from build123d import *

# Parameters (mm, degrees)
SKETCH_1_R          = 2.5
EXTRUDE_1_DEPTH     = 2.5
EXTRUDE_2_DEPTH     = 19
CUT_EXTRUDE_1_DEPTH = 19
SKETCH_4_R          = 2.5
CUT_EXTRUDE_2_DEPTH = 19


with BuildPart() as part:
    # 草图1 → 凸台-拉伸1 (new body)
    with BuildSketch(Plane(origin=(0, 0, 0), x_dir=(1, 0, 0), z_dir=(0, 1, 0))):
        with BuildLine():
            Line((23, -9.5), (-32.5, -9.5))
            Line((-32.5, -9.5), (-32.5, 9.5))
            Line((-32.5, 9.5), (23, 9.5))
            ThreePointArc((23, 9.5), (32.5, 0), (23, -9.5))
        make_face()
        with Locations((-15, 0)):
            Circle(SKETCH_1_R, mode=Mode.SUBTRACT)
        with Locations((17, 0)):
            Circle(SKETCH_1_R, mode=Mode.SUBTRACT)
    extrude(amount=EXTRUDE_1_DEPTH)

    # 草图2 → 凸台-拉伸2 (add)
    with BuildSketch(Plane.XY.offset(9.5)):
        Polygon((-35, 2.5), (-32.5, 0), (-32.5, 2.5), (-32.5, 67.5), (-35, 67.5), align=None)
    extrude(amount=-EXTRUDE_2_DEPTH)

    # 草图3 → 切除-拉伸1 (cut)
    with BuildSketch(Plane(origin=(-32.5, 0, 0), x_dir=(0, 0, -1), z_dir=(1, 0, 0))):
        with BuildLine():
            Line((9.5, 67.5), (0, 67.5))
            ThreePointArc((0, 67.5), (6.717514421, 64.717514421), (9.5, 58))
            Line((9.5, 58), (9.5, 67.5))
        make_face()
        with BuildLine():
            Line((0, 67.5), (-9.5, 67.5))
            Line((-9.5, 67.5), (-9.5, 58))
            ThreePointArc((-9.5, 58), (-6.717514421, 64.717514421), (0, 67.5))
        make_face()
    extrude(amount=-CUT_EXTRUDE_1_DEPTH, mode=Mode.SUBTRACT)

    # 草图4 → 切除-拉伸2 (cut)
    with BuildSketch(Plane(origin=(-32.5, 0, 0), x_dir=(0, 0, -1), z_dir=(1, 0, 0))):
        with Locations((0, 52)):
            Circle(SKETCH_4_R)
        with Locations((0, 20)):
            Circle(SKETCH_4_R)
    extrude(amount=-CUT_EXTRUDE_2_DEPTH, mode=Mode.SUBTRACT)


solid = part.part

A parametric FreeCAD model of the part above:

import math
import FreeCAD as App
import Part
import Sketcher

V = App.Vector
Q = App.Units.Quantity


def add_polygon(sketch, points):
    """Adds a closed chain of lines whose ends are joined by coincident constraints."""
    first, n = sketch.GeometryCount, len(points)
    for a, b in zip(points, points[1:] + points[:1]):
        sketch.addGeometry(Part.LineSegment(App.Vector(*a, 0), App.Vector(*b, 0)), False)
    for i in range(n):
        sketch.addConstraint(Sketcher.Constraint("Coincident", first + i, 2, first + (i + 1) % n, 1))

doc = App.newDocument("Part")
body = doc.addObject("PartDesign::Body", "Body")

sketch1 = doc.addObject("Sketcher::SketchObject", "Sketch")
body.addObject(sketch1)
sketch1.AttachmentSupport = (doc.XZ_Plane, [""])
sketch1.MapMode = "FlatFace"
sketch1.addGeometry([
    Part.LineSegment(V(-32.5, 9.5, 0), V(23, 9.5, 0)),
    Part.ArcOfCircle(Part.Circle(V(23, 0, 0), V(0, 0, 1), 9.5), math.radians(-90), math.radians(90)),
    Part.LineSegment(V(23, -9.5, 0), V(-32.5, -9.5, 0)),
    Part.LineSegment(V(-32.5, -9.5, 0), V(-32.5, 9.5, 0)),
    Part.Circle(V(17, 0, 0), V(0, 0, 1), 2.5),
    Part.Circle(V(-15, 0, 0), V(0, 0, 1), 2.5),
], False)
sketch1.addConstraint([
    Sketcher.Constraint("Tangent", 0, 2, 1, 2),
    Sketcher.Constraint("Tangent", 1, 1, 2, 1),
    Sketcher.Constraint("Coincident", 2, 2, 3, 1),
    Sketcher.Constraint("Coincident", 3, 2, 0, 1),
    Sketcher.Constraint("Horizontal", 0),
    Sketcher.Constraint("Horizontal", 2),
    Sketcher.Constraint("Vertical", 3),
    Sketcher.Constraint("Equal", 4, 5),
    Sketcher.Constraint("PointOnObject", 1, 3, -1),
    Sketcher.Constraint("PointOnObject", 4, 3, -1),
    Sketcher.Constraint("PointOnObject", 5, 3, -1),
    Sketcher.Constraint("Diameter", 4, 5.0),
    Sketcher.Constraint("Radius", 1, 9.5),
    Sketcher.Constraint("DistanceX", 0, 1, 0, 2, 55.5),
    Sketcher.Constraint("DistanceX", -1, 1, 1, 3, 23.0),
    Sketcher.Constraint("DistanceX", -1, 1, 4, 3, 17.0),
    Sketcher.Constraint("DistanceX", 5, 3, -1, 1, 15.0),
])
pad1 = doc.addObject("PartDesign::Pad", "Pad")
body.addObject(pad1)
pad1.Profile = sketch1
pad1.Length = 2.5
pad1.Reversed = True

sketch2 = doc.addObject("Sketcher::SketchObject", "Sketch001")
body.addObject(sketch2)
sketch2.AttachmentSupport = (doc.XY_Plane, [""])
sketch2.MapMode = "FlatFace"
sketch2.AttachmentOffset = App.Placement(V(0, 0, 9.5), App.Rotation())
add_polygon(sketch2, [(-35, 2.5), (-32.5, 0), (-32.5, 67.5), (-35, 67.5)])
sketch2.addConstraint([
    Sketcher.Constraint("Vertical", 1),
    Sketcher.Constraint("Horizontal", 2),
    Sketcher.Constraint("Vertical", 3),
    Sketcher.Constraint("PointOnObject", 0, 2, -1),
    Sketcher.Constraint("DistanceY", 3, 2, 3, 1, 65.0),
    Sketcher.Constraint("Angle", 0, Q("-45 deg")),
    Sketcher.Constraint("DistanceX", 2, 2, 2, 1, 2.5),
    Sketcher.Constraint("DistanceX", 2, 2, -1, 1, 35.0),
])
pad2 = doc.addObject("PartDesign::Pad", "Pad001")
body.addObject(pad2)
pad2.Profile = sketch2
pad2.Length = 19
pad2.Reversed = True

sketch3 = doc.addObject("Sketcher::SketchObject", "Sketch002")
body.addObject(sketch3)
sketch3.AttachmentSupport = (doc.YZ_Plane, [""])
sketch3.MapMode = "FlatFace"
sketch3.AttachmentOffset = App.Placement(V(0, 0, -32.5), App.Rotation())
sketch3.addGeometry([
    Part.LineSegment(V(68, -10, 0), V(68, 0, 0)),
    Part.ArcOfCircle(Part.Circle(V(58, 0, 0), V(0, 0, 1), 10), math.radians(-90), math.radians(0)),
    Part.LineSegment(V(58, -10, 0), V(68, -10, 0)),
    Part.LineSegment(V(68, 0, 0), V(68, 10, 0)),
    Part.LineSegment(V(68, 10, 0), V(58, 10, 0)),
    Part.ArcOfCircle(Part.Circle(V(58, 0, 0), V(0, 0, 1), 10), math.radians(0), math.radians(90)),
], False)
sketch3.addConstraint([
    Sketcher.Constraint("Tangent", 0, 2, 1, 2),
    Sketcher.Constraint("Tangent", 1, 1, 2, 1),
    Sketcher.Constraint("Coincident", 2, 2, 0, 1),
    Sketcher.Constraint("Coincident", 3, 2, 4, 1),
    Sketcher.Constraint("Tangent", 4, 2, 5, 2),
    Sketcher.Constraint("Tangent", 5, 1, 3, 1),
    Sketcher.Constraint("Vertical", 0),
    Sketcher.Constraint("Horizontal", 2),
    Sketcher.Constraint("Vertical", 3),
    Sketcher.Constraint("Horizontal", 4),
    Sketcher.Constraint("Coincident", 5, 3, 1, 3),
    Sketcher.Constraint("Equal", 1, 5),
    Sketcher.Constraint("PointOnObject", 1, 3, -1),
    Sketcher.Constraint("Radius", 1, 9.5),
    Sketcher.Constraint("DistanceX", -1, 1, 1, 3, 58.0),
])
pocket1 = doc.addObject("PartDesign::Pocket", "Pocket")
body.addObject(pocket1)
pocket1.Profile = sketch3
pocket1.Length = 19

sketch4 = doc.addObject("Sketcher::SketchObject", "Sketch003")
body.addObject(sketch4)
sketch4.AttachmentSupport = (doc.YZ_Plane, [""])
sketch4.MapMode = "FlatFace"
sketch4.AttachmentOffset = App.Placement(V(0, 0, -32.5), App.Rotation())
sketch4.addGeometry([
    Part.Circle(V(52, 0, 0), V(0, 0, 1), 2.5),
    Part.Circle(V(20, 0, 0), V(0, 0, 1), 2.5),
], False)
sketch4.addConstraint([
    Sketcher.Constraint("Equal", 0, 1),
    Sketcher.Constraint("PointOnObject", 0, 3, -1),
    Sketcher.Constraint("PointOnObject", 1, 3, -1),
    Sketcher.Constraint("Diameter", 0, 5.0),
    Sketcher.Constraint("DistanceX", -1, 1, 0, 3, 52.0),
    Sketcher.Constraint("DistanceX", -1, 1, 1, 3, 20.0),
])
pocket2 = doc.addObject("PartDesign::Pocket", "Pocket001")
body.addObject(pocket2)
pocket2.Profile = sketch4
pocket2.Length = 19

doc.recompute()
